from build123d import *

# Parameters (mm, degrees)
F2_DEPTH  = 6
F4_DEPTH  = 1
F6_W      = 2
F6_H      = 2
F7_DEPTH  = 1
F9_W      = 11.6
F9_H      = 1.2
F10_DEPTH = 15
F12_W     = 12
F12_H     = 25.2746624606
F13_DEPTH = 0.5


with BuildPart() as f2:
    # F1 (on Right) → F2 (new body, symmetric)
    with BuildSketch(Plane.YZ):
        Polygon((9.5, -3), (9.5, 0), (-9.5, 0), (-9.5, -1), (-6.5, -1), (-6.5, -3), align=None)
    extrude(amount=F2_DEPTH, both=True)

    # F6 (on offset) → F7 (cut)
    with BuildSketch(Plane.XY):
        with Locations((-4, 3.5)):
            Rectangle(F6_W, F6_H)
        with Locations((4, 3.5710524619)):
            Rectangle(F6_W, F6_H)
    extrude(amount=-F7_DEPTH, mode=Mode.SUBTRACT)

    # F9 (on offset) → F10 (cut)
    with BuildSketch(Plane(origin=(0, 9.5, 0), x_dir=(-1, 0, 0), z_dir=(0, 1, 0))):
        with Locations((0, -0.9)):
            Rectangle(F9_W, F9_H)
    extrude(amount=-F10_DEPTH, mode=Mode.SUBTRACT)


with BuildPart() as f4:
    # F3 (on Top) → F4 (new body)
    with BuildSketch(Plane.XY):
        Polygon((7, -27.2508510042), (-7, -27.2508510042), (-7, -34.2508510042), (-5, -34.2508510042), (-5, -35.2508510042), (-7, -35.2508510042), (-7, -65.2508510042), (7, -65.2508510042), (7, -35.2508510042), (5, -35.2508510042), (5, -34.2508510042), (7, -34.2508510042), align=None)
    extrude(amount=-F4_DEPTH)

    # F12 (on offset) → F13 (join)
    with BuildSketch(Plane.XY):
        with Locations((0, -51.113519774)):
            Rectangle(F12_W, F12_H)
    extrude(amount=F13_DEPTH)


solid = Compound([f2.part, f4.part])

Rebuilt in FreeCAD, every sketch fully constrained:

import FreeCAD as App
import Part
import Sketcher


def add_polygon(sketch, points):
    """Adds a closed chain of lines whose ends are joined by coincident constraints."""
    first, n = sketch.GeometryCount, len(points)
    for a, b in zip(points, points[1:] + points[:1]):
        sketch.addGeometry(Part.LineSegment(App.Vector(*a, 0), App.Vector(*b, 0)), False)
    for i in range(n):
        sketch.addConstraint(Sketcher.Constraint("Coincident", first + i, 2, first + (i + 1) % n, 1))

doc = App.newDocument("Part")
body = doc.addObject("PartDesign::Body", "Body")

# Sketch on YZ plane
sketch1 = body.newObject("Sketcher::SketchObject", "Sketch")
sketch1.AttachmentSupport = (doc.getObject("YZ_Plane"), [""])
sketch1.MapMode = "FlatFace"
add_polygon(sketch1, [(9.5, -3), (9.5, 0), (-9.5, 0), (-9.5, -1), (-6.5, -1), (-6.5, -3)])  # lines 0-5
sketch1.addConstraint(Sketcher.Constraint("Vertical", 0))
sketch1.addConstraint(Sketcher.Constraint("Horizontal", 1))
sketch1.addConstraint(Sketcher.Constraint("Vertical", 2))
sketch1.addConstraint(Sketcher.Constraint("Horizontal", 3))
sketch1.addConstraint(Sketcher.Constraint("Vertical", 4))
sketch1.addConstraint(Sketcher.Constraint("Horizontal", 5))
sketch1.addConstraint(Sketcher.Constraint("Symmetric", 0, 2, 1, 2, -1, 1))
sketch1.addConstraint(Sketcher.Constraint("Equal", 3, 0))
sketch1.addConstraint(Sketcher.Constraint("DistanceX", 1, 2, 1, 1, 19.0))
sketch1.addConstraint(Sketcher.Constraint("DistanceX", 3, 1, 3, 2, 3.0))
sketch1.addConstraint(Sketcher.Constraint("DistanceY", 2, 2, 2, 1, 1.0))
pad1 = body.newObject("PartDesign::Pad", "Pad")
pad1.Profile = sketch1
pad1.Length = 12
pad1.Midplane = True

# Sketch on XY plane
sketch2 = body.newObject("Sketcher::SketchObject", "Sketch001")
sketch2.AttachmentSupport = (doc.getObject("XY_Plane"), [""])
sketch2.MapMode = "FlatFace"
add_polygon(sketch2, [(-5, 4.5), (-5, 2.5), (-3, 2.5), (-3, 4.5)])  # lines 0-3
add_polygon(sketch2, [(3, 4.6), (3, 2.6), (5, 2.6), (5, 4.6)])  # lines 4-7
sketch2.addConstraint(Sketcher.Constraint("Vertical", 0))
sketch2.addConstraint(Sketcher.Constraint("Horizontal", 1))
sketch2.addConstraint(Sketcher.Constraint("Vertical", 2))
sketch2.addConstraint(Sketcher.Constraint("Horizontal", 3))
sketch2.addConstraint(Sketcher.Constraint("Vertical", 4))
sketch2.addConstraint(Sketcher.Constraint("Horizontal", 5))
sketch2.addConstraint(Sketcher.Constraint("Vertical", 6))
sketch2.addConstraint(Sketcher.Constraint("Horizontal", 7))
sketch2.addConstraint(Sketcher.Constraint("Equal", 3, 5))
sketch2.addConstraint(Sketcher.Constraint("Equal", 7, 0))
sketch2.addConstraint(Sketcher.Constraint("Equal", 2, 4))
sketch2.addConstraint(Sketcher.Constraint("DistanceX", 1, 1, 1, 2, 2.0))
sketch2.addConstraint(Sketcher.Constraint("DistanceX", 0, 2, -1, 1, 5.0))
sketch2.addConstraint(Sketcher.Constraint("DistanceX", -1, 1, 4, 2, 3.0))
sketch2.addConstraint(Sketcher.Constraint("DistanceY", -1, 1, 0, 2, 2.5))
sketch2.addConstraint(Sketcher.Constraint("DistanceY", -1, 1, 4, 2, 2.571052))
pocket1 = body.newObject("PartDesign::Pocket", "Pocket")
pocket1.Profile = sketch2
pocket1.Length = 1

# Sketch on XZ plane
sketch3 = body.newObject("Sketcher::SketchObject", "Sketch002")
sketch3.AttachmentSupport = (doc.getObject("XZ_Plane"), [""])
sketch3.MapMode = "FlatFace"
sketch3.AttachmentOffset = App.Placement(App.Vector(0, 0, -9.5), App.Rotation())
add_polygon(sketch3, [(5.8, -0.3), (5.8, -1.5), (-5.8, -1.5), (-5.8, -0.3)])  # lines 0-3
sketch3.addConstraint(Sketcher.Constraint("Vertical", 0))
sketch3.addConstraint(Sketcher.Constraint("Horizontal", 1))
sketch3.addConstraint(Sketcher.Constraint("Vertical", 2))
sketch3.addConstraint(Sketcher.Constraint("Horizontal", 3))
sketch3.addConstraint(Sketcher.Constraint("DistanceX", 1, 2, 1, 1, 11.6))
sketch3.addConstraint(Sketcher.Constraint("DistanceY", 0, 2, 0, 1, 1.2))
sketch3.addConstraint(Sketcher.Constraint("DistanceX", -1, 1, 0, 2, 5.8))
sketch3.addConstraint(Sketcher.Constraint("DistanceY", 0, 2, -1, 1, 1.5))
pocket2 = body.newObject("PartDesign::Pocket", "Pocket001")
pocket2.Profile = sketch3
pocket2.Length = 15
pocket2.Reversed = True
body2 = doc.addObject("PartDesign::Body", "Body001")

# Sketch on XY plane
sketch4 = body2.newObject("Sketcher::SketchObject", "Sketch003")
sketch4.AttachmentSupport = (doc.getObject("XY_Plane001"), [""])
sketch4.MapMode = "FlatFace"
add_polygon(sketch4, [(7, -27.3), (-7, -27.3), (-7, -34.3), (-5, -34.3), (-5, -35.3), (-7, -35.3), (-7, -65.3), (7, -65.3), (7, -35.3), (5, -35.3), (5, -34.3), (7, -34.3)])  # lines 0-11
sketch4.addConstraint(Sketcher.Constraint("Horizontal", 0))
sketch4.addConstraint(Sketcher.Constraint("Vertical", 1))
sketch4.addConstraint(Sketcher.Constraint("Horizontal", 2))
sketch4.addConstraint(Sketcher.Constraint("Vertical", 3))
sketch4.addConstraint(Sketcher.Constraint("Horizontal", 4))
sketch4.addConstraint(Sketcher.Constraint("Vertical", 5))
sketch4.addConstraint(Sketcher.Constraint("Horizontal", 6))
sketch4.addConstraint(Sketcher.Constraint("Vertical", 7))
sketch4.addConstraint(Sketcher.Constraint("Horizontal", 8))
sketch4.addConstraint(Sketcher.Constraint("Vertical", 9))
sketch4.addConstraint(Sketcher.Constraint("Horizontal", 10))
sketch4.addConstraint(Sketcher.Constraint("Vertical", 11))
sketch4.addConstraint(Sketcher.Constraint("Symmetric", 4, 2, 7, 2, -2))
sketch4.addConstraint(Sketcher.Constraint("Symmetric", 2, 2, 9, 2, -2))
sketch4.addConstraint(Sketcher.Constraint("Vertical", 1, 2, 4, 2))
sketch4.addConstraint(Sketcher.Constraint("Vertical", 7, 2, 10, 2))
sketch4.addConstraint(Sketcher.Constraint("DistanceX", 0, 2, 0, 1, 14.0))
sketch4.addConstraint(Sketcher.Constraint("DistanceX", 2, 1, 2, 2, 2.0))
sketch4.addConstraint(Sketcher.Constraint("DistanceY", 1, 2, 1, 1, 7.0))
sketch4.addConstraint(Sketcher.Constraint("DistanceY", 3, 2, 3, 1, 1.0))
sketch4.addConstraint(Sketcher.Constraint("DistanceY", 5, 2, 5, 1, 30.0))
sketch4.addConstraint(Sketcher.Constraint("DistanceY", 0, 2, -1, 1, 27.250851))
pad2 = body2.newObject("PartDesign::Pad", "Pad001")
pad2.Profile = sketch4
pad2.Length = 1
pad2.Reversed = True

# Sketch on XY plane
sketch5 = body2.newObject("Sketcher::SketchObject", "Sketch004")
sketch5.AttachmentSupport = (doc.getObject("XY_Plane001"), [""])
sketch5.MapMode = "FlatFace"
add_polygon(sketch5, [(-6, -38), (-6, -64), (6, -64), (6, -38)])  # lines 0-3
sketch5.addConstraint(Sketcher.Constraint("Vertical", 0))
sketch5.addConstraint(Sketcher.Constraint("Horizontal", 1))
sketch5.addConstraint(Sketcher.Constraint("Vertical", 2))
sketch5.addConstraint(Sketcher.Constraint("Horizontal", 3))
sketch5.addConstraint(Sketcher.Constraint("DistanceX", 1, 1, 1, 2, 12.0))
sketch5.addConstraint(Sketcher.Constraint("DistanceX", 0, 2, -1, 1, 6.0))
sketch5.addConstraint(Sketcher.Constraint("DistanceY", 0, 2, 0, 1, 25.274662))
sketch5.addConstraint(Sketcher.Constraint("DistanceY", 0, 2, -1, 1, 63.750851))
pad3 = body2.newObject("PartDesign::Pad", "Pad002")
pad3.Profile = sketch5
pad3.Length = 0.5

doc.recompute()
